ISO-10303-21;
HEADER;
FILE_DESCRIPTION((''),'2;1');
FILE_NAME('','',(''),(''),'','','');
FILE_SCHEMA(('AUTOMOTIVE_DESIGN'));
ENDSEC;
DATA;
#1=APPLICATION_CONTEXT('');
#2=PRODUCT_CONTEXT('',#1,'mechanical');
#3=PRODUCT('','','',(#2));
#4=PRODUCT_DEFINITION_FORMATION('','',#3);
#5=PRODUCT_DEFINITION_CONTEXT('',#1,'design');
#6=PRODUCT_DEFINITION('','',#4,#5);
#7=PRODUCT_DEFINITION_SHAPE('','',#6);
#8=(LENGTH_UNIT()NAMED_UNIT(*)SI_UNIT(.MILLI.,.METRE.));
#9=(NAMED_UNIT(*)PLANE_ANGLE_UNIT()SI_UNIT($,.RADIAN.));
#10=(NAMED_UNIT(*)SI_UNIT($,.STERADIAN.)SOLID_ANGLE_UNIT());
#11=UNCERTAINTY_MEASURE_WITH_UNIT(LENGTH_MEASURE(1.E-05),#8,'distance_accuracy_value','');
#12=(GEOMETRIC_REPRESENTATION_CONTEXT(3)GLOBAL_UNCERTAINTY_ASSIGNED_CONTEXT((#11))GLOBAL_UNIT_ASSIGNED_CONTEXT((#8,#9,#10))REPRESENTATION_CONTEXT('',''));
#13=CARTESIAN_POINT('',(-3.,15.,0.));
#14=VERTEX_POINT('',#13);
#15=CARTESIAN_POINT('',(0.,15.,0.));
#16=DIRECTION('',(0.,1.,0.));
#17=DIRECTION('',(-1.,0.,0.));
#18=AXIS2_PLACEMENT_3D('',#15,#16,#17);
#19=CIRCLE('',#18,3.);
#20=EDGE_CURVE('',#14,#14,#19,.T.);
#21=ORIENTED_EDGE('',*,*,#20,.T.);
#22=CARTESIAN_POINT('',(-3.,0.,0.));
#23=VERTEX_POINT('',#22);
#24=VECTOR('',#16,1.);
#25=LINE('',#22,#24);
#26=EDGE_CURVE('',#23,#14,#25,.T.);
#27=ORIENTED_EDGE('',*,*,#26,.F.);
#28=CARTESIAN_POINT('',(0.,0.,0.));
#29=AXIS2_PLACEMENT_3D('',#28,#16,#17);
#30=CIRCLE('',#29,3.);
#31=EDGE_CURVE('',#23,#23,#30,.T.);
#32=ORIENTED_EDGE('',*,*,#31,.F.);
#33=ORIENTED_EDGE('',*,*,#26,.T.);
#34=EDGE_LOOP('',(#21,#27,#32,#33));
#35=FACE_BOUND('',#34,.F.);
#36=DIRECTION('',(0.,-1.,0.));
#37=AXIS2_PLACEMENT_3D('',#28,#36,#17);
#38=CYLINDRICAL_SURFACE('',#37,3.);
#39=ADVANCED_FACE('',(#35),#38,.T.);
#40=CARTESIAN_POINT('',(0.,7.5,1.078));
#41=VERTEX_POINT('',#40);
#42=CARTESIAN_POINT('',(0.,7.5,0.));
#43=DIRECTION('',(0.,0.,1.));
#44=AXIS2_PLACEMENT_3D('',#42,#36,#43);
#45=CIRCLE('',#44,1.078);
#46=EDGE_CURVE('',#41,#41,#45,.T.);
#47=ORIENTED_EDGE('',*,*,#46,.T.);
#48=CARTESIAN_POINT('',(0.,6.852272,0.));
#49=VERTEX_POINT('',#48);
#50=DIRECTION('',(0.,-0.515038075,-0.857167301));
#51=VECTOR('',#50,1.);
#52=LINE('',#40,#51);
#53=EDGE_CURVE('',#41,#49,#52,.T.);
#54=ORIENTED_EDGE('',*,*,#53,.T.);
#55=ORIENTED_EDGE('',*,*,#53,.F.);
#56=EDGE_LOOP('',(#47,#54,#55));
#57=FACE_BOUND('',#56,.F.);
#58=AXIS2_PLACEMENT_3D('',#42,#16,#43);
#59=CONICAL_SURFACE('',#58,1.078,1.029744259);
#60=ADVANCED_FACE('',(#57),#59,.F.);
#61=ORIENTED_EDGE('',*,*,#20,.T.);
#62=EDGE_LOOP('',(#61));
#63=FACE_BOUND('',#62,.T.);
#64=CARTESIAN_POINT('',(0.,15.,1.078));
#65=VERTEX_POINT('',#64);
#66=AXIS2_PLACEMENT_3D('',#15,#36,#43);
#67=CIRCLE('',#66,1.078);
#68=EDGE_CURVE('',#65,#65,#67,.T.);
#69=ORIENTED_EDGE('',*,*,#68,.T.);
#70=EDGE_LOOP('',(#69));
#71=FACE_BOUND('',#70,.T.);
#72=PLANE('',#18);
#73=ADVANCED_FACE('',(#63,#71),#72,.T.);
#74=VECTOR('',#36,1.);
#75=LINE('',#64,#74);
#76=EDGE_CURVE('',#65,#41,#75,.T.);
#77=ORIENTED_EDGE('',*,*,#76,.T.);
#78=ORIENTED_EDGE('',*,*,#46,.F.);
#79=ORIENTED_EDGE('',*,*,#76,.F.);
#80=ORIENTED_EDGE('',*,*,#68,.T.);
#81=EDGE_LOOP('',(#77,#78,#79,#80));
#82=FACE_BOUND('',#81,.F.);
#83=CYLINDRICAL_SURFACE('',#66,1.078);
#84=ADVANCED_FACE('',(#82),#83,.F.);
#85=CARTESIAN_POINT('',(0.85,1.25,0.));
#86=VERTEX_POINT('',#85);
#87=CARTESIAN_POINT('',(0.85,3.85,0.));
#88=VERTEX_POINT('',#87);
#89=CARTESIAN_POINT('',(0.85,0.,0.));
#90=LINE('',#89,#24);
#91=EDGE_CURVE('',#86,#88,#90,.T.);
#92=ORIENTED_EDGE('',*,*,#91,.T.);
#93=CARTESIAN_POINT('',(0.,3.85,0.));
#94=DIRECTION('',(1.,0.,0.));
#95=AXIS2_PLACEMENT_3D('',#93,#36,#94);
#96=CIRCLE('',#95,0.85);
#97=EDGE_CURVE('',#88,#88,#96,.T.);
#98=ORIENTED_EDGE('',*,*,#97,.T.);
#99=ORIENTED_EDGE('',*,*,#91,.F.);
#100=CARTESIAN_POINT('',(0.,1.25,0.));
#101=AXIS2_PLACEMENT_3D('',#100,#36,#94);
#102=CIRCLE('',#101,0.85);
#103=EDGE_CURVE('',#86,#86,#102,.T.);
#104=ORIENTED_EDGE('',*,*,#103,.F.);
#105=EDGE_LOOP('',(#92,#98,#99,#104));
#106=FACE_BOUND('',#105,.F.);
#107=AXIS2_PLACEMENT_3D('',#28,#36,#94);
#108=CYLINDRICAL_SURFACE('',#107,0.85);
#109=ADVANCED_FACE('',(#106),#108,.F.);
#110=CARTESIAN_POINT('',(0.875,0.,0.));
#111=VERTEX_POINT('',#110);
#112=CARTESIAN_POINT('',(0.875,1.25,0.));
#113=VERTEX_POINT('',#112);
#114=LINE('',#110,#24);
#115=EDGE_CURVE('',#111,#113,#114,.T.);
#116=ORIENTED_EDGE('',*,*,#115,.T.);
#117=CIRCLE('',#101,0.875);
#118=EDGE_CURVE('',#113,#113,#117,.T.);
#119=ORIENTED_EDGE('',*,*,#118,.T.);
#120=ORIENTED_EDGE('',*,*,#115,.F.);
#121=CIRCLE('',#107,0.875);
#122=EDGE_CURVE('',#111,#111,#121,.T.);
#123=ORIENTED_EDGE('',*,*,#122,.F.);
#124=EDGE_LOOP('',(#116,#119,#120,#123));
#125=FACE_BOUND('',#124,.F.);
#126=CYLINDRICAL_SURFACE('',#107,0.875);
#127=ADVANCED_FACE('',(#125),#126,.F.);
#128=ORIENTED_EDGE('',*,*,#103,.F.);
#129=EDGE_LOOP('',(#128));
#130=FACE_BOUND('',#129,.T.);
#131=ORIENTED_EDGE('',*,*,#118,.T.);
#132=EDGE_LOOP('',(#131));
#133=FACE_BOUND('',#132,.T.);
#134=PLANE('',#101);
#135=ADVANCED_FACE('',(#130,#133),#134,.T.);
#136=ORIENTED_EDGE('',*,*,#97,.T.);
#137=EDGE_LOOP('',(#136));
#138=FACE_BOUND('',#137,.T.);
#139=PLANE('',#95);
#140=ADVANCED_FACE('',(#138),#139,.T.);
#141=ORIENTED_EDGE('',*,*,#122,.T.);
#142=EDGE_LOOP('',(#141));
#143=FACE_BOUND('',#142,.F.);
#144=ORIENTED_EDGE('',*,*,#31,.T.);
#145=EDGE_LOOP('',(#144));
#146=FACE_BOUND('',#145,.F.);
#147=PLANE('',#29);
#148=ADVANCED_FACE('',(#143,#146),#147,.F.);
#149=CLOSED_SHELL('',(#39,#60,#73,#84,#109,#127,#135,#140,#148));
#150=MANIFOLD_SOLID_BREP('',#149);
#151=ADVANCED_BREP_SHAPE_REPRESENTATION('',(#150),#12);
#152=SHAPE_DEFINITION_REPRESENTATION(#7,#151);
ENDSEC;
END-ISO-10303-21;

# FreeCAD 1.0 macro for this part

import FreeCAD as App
import Part
import Sketcher

doc = App.newDocument("Part")
body = doc.addObject("PartDesign::Body", "Body")

sketch1 = body.newObject("Sketcher::SketchObject", "Sketch")
sketch1.AttachmentSupport = (doc.getObject("XZ_Plane"), [""])
sketch1.MapMode = "FlatFace"
sketch1.addGeometry(Part.Circle(App.Vector(0, 0, 0), App.Vector(0, 0, 1), 3), False)
sketch1.addConstraint(Sketcher.Constraint("Coincident", 0, 3, -1, 1))
sketch1.addConstraint(Sketcher.Constraint("Diameter", 0, 6.0))
pad1 = body.newObject("PartDesign::Pad", "Pad")
pad1.Profile = sketch1
pad1.Length = 15
pad1.Reversed = True

sketch2 = body.newObject("Sketcher::SketchObject", "Sketch001")
sketch2.AttachmentSupport = (doc.getObject("XZ_Plane"), [""])
sketch2.MapMode = "FlatFace"
sketch2.AttachmentOffset = App.Placement(App.Vector(0, 0, -15), App.Rotation())
sketch2.addGeometry(Part.Circle(App.Vector(0, 0, 0), App.Vector(0, 0, 1), 1.078), False)
sketch2.addConstraint(Sketcher.Constraint("Coincident", 0, 3, -1, 1))
sketch2.addConstraint(Sketcher.Constraint("Diameter", 0, 2.156))
doc.recompute()
hole = body.newObject("PartDesign::Hole", "Hole")
hole.Profile = sketch2
hole.ThreadType = "None"
hole.Diameter = 2.156
hole.DepthType = "Dimension"
hole.Depth = 7.5
hole.DrillPoint = "Angled"
hole.DrillPointAngle = 118
hole.Reversed = True

sketch3 = body.newObject("Sketcher::SketchObject", "Sketch002")
sketch3.AttachmentSupport = (doc.getObject("XZ_Plane"), [""])
sketch3.MapMode = "FlatFace"
sketch3.addGeometry(Part.Circle(App.Vector(0, 0, 0), App.Vector(0, 0, 1), 0.85), False)
sketch3.addConstraint(Sketcher.Constraint("Coincident", 0, 3, -1, 1))
sketch3.addConstraint(Sketcher.Constraint("Diameter", 0, 1.7))
pocket1 = body.newObject("PartDesign::Pocket", "Pocket")
pocket1.Profile = sketch3
pocket1.Length = 3.85

sketch4 = body.newObject("Sketcher::SketchObject", "Sketch003")
sketch4.AttachmentSupport = (doc.getObject("XZ_Plane"), [""])
sketch4.MapMode = "FlatFace"
sketch4.addGeometry(Part.Circle(App.Vector(0, 0, 0), App.Vector(0, 0, 1), 0.875), False)
sketch4.addGeometry(Part.Circle(App.Vector(0, 0, 0), App.Vector(0, 0, 1), 0.85), False)
sketch4.addConstraint(Sketcher.Constraint("Coincident", 0, 3, -1, 1))
sketch4.addConstraint(Sketcher.Constraint("Coincident", 1, 3, -1, 1))
sketch4.addConstraint(Sketcher.Constraint("Diameter", 0, 1.75))
sketch4.addConstraint(Sketcher.Constraint("Diameter", 1, 1.7))
pocket2 = body.newObject("PartDesign::Pocket", "Pocket001")
pocket2.Profile = sketch4
pocket2.Length = 1.25

doc.recompute()
